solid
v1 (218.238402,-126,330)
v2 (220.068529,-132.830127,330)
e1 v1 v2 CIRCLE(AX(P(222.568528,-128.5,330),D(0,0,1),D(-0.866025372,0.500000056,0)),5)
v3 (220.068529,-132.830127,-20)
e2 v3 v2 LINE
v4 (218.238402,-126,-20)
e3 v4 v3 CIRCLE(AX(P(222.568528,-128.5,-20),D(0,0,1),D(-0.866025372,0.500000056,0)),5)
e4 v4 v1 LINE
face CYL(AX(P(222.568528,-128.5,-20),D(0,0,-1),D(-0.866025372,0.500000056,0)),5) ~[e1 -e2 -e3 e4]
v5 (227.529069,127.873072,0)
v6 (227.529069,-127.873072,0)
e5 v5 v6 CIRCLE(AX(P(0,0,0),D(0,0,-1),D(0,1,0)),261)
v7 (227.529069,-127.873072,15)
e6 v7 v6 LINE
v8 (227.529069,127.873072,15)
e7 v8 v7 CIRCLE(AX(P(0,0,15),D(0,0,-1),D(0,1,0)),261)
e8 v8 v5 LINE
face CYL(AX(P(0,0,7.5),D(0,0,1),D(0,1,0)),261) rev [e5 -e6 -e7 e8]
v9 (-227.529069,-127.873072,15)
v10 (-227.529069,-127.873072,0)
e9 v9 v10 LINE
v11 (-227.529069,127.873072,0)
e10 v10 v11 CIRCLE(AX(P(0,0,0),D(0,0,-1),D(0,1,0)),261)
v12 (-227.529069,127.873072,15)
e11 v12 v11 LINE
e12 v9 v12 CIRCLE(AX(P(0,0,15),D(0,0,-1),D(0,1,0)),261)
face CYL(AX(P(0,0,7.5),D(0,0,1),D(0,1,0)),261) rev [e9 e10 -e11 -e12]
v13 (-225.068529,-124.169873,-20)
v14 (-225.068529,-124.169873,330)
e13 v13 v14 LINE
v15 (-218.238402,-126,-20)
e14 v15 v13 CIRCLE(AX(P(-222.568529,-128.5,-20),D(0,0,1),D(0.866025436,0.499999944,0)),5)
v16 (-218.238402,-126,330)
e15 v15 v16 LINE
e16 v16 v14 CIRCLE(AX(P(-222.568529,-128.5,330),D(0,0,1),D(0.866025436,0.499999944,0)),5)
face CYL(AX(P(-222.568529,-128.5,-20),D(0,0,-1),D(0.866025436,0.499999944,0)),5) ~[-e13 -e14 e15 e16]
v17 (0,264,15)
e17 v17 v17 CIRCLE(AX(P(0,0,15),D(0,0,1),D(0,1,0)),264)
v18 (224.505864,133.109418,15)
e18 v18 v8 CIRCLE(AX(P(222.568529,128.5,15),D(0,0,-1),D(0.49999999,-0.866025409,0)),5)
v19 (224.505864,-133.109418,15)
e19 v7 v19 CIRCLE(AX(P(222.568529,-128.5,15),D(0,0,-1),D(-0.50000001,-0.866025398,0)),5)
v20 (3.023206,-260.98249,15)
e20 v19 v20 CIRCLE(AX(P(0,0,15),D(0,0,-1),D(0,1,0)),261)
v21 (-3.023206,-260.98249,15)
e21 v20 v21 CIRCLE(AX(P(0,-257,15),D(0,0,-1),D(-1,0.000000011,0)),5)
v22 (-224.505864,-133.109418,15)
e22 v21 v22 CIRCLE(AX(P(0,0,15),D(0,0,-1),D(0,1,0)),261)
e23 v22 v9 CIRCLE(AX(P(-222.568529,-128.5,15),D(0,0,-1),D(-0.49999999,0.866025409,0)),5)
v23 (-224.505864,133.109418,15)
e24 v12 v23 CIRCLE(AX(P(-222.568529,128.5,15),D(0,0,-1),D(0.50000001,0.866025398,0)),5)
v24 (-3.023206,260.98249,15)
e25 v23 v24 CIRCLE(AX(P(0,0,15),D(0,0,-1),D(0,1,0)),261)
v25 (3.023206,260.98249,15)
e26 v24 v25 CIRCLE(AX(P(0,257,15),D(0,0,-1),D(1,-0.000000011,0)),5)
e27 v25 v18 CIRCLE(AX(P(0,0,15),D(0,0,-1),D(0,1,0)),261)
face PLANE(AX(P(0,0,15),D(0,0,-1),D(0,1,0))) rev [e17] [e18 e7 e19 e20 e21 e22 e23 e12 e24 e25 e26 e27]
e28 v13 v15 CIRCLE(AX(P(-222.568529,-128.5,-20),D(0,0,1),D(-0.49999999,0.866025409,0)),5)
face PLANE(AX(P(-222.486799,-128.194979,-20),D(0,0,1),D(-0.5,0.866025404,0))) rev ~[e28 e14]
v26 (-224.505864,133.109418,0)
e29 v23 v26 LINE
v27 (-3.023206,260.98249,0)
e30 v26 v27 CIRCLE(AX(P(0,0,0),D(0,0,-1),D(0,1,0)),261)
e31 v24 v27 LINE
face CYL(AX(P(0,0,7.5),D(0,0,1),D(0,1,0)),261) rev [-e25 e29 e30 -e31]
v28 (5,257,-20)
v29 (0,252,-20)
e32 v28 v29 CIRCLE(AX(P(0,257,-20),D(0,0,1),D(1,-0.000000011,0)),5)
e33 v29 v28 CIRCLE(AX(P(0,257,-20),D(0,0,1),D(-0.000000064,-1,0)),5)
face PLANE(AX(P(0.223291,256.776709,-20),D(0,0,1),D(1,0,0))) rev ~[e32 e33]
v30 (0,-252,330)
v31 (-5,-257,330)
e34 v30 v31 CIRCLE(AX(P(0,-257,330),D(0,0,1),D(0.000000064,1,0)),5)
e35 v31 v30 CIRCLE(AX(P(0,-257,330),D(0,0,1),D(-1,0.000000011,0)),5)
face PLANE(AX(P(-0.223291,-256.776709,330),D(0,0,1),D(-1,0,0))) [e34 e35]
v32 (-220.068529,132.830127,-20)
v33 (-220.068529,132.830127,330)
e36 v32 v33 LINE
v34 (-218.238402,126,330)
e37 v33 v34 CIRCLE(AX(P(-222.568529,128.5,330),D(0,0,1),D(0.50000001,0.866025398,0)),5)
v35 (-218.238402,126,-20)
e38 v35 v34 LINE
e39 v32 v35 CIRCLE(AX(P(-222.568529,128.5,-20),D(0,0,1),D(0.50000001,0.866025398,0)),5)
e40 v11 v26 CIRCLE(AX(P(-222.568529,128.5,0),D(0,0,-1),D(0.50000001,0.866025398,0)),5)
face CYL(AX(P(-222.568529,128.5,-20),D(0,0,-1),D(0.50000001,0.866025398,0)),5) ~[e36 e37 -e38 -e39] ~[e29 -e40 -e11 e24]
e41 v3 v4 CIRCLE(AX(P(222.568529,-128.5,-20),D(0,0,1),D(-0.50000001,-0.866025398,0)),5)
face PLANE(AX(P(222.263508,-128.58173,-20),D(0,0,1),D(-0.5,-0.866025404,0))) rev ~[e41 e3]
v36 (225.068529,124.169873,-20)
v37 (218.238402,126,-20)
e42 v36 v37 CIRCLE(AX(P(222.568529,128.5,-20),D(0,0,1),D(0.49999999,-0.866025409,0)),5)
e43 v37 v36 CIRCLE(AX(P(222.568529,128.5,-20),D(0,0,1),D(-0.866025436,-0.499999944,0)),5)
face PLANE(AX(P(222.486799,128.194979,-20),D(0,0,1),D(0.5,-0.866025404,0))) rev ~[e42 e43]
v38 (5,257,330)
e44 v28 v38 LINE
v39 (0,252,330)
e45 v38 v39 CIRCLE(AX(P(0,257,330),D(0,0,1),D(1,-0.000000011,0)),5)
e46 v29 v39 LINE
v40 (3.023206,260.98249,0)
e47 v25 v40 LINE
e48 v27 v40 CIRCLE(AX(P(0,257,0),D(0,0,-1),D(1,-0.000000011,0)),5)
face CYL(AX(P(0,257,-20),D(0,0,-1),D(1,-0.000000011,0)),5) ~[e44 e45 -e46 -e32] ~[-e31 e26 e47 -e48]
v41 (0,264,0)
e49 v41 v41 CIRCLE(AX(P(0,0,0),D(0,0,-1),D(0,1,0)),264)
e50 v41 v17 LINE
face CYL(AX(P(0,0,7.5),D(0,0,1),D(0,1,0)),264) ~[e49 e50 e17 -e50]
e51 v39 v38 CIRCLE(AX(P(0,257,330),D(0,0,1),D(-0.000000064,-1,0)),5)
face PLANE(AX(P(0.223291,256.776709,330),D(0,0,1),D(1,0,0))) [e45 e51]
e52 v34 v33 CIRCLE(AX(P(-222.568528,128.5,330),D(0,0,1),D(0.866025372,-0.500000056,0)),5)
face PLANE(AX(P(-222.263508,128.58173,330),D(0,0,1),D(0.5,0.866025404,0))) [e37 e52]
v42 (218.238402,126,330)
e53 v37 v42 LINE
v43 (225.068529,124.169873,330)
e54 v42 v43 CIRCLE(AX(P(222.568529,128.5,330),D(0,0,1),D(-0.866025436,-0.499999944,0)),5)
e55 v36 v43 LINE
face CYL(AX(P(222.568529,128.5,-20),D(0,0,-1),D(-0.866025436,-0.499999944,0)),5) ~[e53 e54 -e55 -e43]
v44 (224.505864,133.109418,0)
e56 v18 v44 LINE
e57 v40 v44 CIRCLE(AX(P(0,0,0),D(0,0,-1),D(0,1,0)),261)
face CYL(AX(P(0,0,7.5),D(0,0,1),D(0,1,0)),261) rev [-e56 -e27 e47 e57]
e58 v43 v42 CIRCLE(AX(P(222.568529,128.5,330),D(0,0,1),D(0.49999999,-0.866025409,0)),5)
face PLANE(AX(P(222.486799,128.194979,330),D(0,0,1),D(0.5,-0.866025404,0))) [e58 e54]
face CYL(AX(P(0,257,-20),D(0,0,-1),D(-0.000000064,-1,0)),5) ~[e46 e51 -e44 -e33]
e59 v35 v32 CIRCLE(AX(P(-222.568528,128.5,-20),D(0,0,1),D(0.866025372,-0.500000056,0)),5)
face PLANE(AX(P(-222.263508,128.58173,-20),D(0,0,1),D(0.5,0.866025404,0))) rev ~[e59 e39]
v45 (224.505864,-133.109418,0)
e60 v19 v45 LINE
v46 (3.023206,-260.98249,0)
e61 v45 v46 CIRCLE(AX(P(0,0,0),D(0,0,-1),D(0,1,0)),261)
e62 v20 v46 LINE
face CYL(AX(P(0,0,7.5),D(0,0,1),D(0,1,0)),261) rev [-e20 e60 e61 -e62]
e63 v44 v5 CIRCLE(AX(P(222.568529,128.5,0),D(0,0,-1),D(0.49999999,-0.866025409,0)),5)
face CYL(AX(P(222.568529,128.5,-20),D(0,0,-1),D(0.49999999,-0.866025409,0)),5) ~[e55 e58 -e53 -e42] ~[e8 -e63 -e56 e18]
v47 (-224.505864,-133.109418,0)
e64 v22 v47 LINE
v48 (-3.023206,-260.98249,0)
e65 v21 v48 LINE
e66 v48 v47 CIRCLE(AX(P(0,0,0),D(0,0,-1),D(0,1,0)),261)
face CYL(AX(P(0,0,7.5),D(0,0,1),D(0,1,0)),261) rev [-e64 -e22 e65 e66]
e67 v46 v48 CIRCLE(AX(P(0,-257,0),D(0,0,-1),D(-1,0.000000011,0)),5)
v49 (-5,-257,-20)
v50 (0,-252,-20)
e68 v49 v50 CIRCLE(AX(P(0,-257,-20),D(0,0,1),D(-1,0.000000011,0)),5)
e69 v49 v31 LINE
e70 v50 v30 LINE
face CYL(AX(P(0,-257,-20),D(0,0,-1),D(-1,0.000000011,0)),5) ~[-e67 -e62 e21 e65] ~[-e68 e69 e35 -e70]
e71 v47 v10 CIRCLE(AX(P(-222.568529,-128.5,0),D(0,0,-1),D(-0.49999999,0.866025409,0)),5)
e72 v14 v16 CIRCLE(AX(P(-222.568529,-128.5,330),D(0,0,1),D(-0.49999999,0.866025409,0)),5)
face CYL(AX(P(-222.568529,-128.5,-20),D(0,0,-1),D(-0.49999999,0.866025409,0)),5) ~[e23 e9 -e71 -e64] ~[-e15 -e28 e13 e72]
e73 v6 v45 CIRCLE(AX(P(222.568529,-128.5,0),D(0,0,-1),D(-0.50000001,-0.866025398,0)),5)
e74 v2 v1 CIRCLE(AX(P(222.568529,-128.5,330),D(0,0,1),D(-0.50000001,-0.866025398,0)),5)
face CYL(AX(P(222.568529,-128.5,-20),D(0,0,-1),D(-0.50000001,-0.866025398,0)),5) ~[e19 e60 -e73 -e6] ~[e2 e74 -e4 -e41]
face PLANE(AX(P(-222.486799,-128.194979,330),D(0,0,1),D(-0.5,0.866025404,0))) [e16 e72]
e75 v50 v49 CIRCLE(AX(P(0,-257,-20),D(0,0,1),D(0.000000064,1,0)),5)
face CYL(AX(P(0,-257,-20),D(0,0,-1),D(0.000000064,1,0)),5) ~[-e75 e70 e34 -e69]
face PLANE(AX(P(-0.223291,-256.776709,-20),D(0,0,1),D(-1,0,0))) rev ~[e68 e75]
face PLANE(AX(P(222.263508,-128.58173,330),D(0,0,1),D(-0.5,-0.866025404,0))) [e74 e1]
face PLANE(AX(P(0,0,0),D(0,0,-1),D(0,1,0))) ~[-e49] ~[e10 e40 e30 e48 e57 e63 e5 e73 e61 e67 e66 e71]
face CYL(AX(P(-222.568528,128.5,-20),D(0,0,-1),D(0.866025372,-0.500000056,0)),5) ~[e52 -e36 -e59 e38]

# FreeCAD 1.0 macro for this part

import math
import FreeCAD as App
import Part
import Sketcher
from FreeCAD import Vector
Q = App.Units.Quantity


def add_polygon(sketch, points):
    """Adds a closed chain of lines whose ends are joined by coincident constraints."""
    first, n = sketch.GeometryCount, len(points)
    for a, b in zip(points, points[1:] + points[:1]):
        sketch.addGeometry(Part.LineSegment(App.Vector(*a, 0), App.Vector(*b, 0)), False)
    for i in range(n):
        sketch.addConstraint(Sketcher.Constraint("Coincident", first + i, 2, first + (i + 1) % n, 1))

doc = App.newDocument("Part")
params = doc.addObject("Spreadsheet::Sheet", "Params")
for row, (alias, value) in enumerate([
    ("sketch1_radius", "5 mm"),
    ("pad1_length", "350 mm"),
    ("sketch2_width", "3 mm"),
    ("sketch2_height", "15 mm"),
    ("revolution_angle", "360 deg"),
], start=1):
    params.set(f"A{row}", alias)
    params.set(f"B{row}", "=" + value)
    params.setAlias(f"B{row}", alias)

body = doc.addObject("PartDesign::Body", "Body")

# Sketch on XY plane
sketch1 = body.newObject("Sketcher::SketchObject", "Sketch")
sketch1.AttachmentSupport = (doc.getObject("XY_Plane"), [""])
sketch1.MapMode = "FlatFace"
sketch1.addGeometry([
    Part.ArcOfCircle(Part.Circle(Vector(0, 257, 0), Vector(0, 0, 1), 5), math.radians(-0.000001), math.radians(270.000001)),
    Part.ArcOfCircle(Part.Circle(Vector(0, 257, 0), Vector(0, 0, 1), 5), math.radians(-90.000004), math.radians(0.000004)),
], False)
sketch1.addConstraint([
    Sketcher.Constraint("Tangent", 0, 1, 1, 2),
    Sketcher.Constraint("Coincident", 1, 1, 0, 2),
    Sketcher.Constraint("PointOnObject", 0, 3, -2),
    Sketcher.Constraint("PointOnObject", 1, 1, -2),
    Sketcher.Constraint("Horizontal", 1, 3, 0, 1),
    Sketcher.Constraint("Radius", 0, Q("5 mm")),
    Sketcher.Constraint("DistanceY", -1, 1, 0, 3, Q("257 mm")),
])
sketch1.setExpression("Constraints[5]", "Params.sketch1_radius")
pad1 = body.newObject("PartDesign::Pad", "Pad")
pad1.Profile = sketch1
pad1.setExpression("Length", "Params.pad1_length")
body2 = doc.addObject("PartDesign::Body", "Body001")
doc.recompute()

body.Placement = App.Placement(Vector(0, 0, -20), App.Rotation(Vector(0, 0, 1), 0))
boolean = body2.newObject("PartDesign::Boolean", "Boolean")
boolean.Type = "Fuse"
boolean.addObjects([body])

# Sketch on YZ plane
sketch2 = body2.newObject("Sketcher::SketchObject", "Sketch001")
sketch2.AttachmentSupport = (doc.getObject("YZ_Plane001"), [""])
sketch2.MapMode = "FlatFace"
add_polygon(sketch2, [(261, 15), (261, 0), (264, 0), (264, 15)])  # lines 0-3
sketch2.addConstraint([
    Sketcher.Constraint("Vertical", 0),
    Sketcher.Constraint("Horizontal", 1),
    Sketcher.Constraint("Vertical", 2),
    Sketcher.Constraint("Horizontal", 3),
    Sketcher.Constraint("PointOnObject", 0, 2, -1),
    Sketcher.Constraint("DistanceX", 1, 1, 1, 2, Q("3 mm")),
    Sketcher.Constraint("DistanceY", 0, 2, 0, 1, Q("15 mm")),
    Sketcher.Constraint("DistanceX", -1, 1, 0, 2, Q("261 mm")),
])
sketch2.setExpression("Constraints[9]", "Params.sketch2_width")
sketch2.setExpression("Constraints[10]", "Params.sketch2_height")
revolution = body2.newObject("PartDesign::Revolution", "Revolution")
revolution.Profile = sketch2
revolution.ReferenceAxis = (sketch2, ["V_Axis"])
revolution.setExpression("Angle", "Params.revolution_angle")
body3 = doc.addObject("PartDesign::Body", "Body002")
doc.recompute()

body3.BaseFeature = body2
doc.recompute()

body4 = doc.addObject("PartDesign::Body", "Body003")
body4.BaseFeature = body2
body4.Placement = App.Placement(Vector(0, 0, 0), App.Rotation(Vector(0, 0, -1), 60))
boolean2 = body3.newObject("PartDesign::Boolean", "Boolean001")
boolean2.Type = "Fuse"
boolean2.addObjects([body4])
doc.recompute()

body5 = doc.addObject("PartDesign::Body", "Body004")
body5.BaseFeature = body2
body5.Placement = App.Placement(Vector(0, 0, 0), App.Rotation(Vector(0, 0, -1), 120))
boolean3 = body3.newObject("PartDesign::Boolean", "Boolean002")
boolean3.Type = "Fuse"
boolean3.addObjects([body5])
doc.recompute()

body6 = doc.addObject("PartDesign::Body", "Body005")
body6.BaseFeature = body2
body6.Placement = App.Placement(Vector(0, 0, 0), App.Rotation(Vector(0, 0, -1), 180))
boolean4 = body3.newObject("PartDesign::Boolean", "Boolean003")
boolean4.Type = "Fuse"
boolean4.addObjects([body6])
doc.recompute()

body7 = doc.addObject("PartDesign::Body", "Body006")
body7.BaseFeature = body2
body7.Placement = App.Placement(Vector(0, 0, 0), App.Rotation(Vector(0, 0, -1), 240))
boolean5 = body3.newObject("PartDesign::Boolean", "Boolean004")
boolean5.Type = "Fuse"
boolean5.addObjects([body7])
doc.recompute()

body2.Placement = App.Placement(Vector(0, 0, 0), App.Rotation(Vector(0, 0, -1), 300))
boolean6 = body3.newObject("PartDesign::Boolean", "Boolean005")
boolean6.Type = "Fuse"
boolean6.addObjects([body2])

doc.recompute()
